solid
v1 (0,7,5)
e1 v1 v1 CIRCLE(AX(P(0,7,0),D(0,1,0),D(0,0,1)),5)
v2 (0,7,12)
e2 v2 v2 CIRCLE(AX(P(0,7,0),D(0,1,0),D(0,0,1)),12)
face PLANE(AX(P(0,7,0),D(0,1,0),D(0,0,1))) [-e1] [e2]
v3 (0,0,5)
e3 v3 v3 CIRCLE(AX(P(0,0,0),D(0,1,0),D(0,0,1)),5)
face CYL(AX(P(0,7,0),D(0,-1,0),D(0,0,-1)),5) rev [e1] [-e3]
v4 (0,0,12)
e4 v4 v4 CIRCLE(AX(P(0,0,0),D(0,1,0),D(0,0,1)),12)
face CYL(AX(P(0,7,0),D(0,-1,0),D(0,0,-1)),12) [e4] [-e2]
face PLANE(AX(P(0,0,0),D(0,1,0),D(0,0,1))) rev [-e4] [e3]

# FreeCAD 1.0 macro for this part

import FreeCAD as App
import Part
import Sketcher

doc = App.newDocument("Part")
body = doc.addObject("PartDesign::Body", "Body")

# Sketch on XZ plane
sketch1 = body.newObject("Sketcher::SketchObject", "Sketch")
sketch1.AttachmentSupport = (doc.getObject("XZ_Plane"), [""])
sketch1.MapMode = "FlatFace"
sketch1.addGeometry([
    Part.Circle(App.Vector(0, 0, 0), App.Vector(0, 0, 1), 12),
    Part.Circle(App.Vector(0, 0, 0), App.Vector(0, 0, 1), 5),
], False)
sketch1.addConstraint([
    Sketcher.Constraint("Coincident", 0, 3, -1, 1),
    Sketcher.Constraint("Coincident", 1, 3, -1, 1),
    Sketcher.Constraint("Diameter", 0, 24.0),
    Sketcher.Constraint("Diameter", 1, 10.0),
])
pad1 = body.newObject("PartDesign::Pad", "Pad")
pad1.Profile = sketch1
pad1.Length = 7
pad1.Reversed = True

doc.recompute()
